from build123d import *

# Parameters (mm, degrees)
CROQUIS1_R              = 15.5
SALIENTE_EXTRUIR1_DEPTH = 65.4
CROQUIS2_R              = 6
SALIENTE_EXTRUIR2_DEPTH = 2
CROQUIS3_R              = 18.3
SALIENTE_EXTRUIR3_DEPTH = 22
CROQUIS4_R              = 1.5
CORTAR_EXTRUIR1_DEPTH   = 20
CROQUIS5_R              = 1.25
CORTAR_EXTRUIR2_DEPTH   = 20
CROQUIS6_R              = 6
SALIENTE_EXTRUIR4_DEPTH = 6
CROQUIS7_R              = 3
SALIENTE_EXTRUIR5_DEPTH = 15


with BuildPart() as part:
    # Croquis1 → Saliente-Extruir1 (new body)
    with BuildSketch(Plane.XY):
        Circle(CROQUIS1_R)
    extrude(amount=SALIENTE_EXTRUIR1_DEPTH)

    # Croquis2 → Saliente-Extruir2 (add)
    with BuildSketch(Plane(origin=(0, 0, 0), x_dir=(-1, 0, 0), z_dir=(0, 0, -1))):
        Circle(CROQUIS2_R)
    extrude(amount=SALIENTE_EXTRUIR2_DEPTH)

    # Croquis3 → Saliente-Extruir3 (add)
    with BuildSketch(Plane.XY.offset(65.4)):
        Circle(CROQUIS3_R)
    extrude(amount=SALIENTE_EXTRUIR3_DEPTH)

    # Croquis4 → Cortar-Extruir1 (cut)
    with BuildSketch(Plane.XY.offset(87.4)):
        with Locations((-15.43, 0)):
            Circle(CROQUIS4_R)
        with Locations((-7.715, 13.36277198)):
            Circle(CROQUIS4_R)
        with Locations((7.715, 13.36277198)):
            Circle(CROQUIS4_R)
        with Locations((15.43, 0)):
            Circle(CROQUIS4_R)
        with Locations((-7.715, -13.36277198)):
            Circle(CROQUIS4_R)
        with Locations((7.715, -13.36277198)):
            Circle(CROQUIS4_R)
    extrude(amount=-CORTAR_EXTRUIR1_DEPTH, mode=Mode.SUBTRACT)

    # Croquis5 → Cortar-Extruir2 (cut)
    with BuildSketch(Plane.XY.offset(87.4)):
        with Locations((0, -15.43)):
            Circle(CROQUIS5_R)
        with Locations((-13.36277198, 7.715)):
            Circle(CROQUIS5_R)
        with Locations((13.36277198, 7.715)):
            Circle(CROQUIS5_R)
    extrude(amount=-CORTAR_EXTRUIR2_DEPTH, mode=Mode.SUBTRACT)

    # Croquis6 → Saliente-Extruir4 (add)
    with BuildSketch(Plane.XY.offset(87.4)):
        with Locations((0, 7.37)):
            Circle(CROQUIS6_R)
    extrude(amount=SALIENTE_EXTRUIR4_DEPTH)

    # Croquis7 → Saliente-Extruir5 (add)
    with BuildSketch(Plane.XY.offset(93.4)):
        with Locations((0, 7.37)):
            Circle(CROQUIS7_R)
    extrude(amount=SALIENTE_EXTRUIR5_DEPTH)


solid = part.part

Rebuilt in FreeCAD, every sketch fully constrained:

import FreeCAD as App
import Part
import Sketcher

V = App.Vector

doc = App.newDocument("Part")
body = doc.addObject("PartDesign::Body", "Body")

sketch1 = doc.addObject("Sketcher::SketchObject", "Sketch")
body.addObject(sketch1)
sketch1.AttachmentSupport = (doc.XY_Plane, [""])
sketch1.MapMode = "FlatFace"
sketch1.addGeometry(Part.Circle(V(0, 0, 0), V(0, 0, 1), 16), False)
sketch1.addConstraint(Sketcher.Constraint("Coincident", 0, 3, -1, 1))
sketch1.addConstraint(Sketcher.Constraint("Diameter", 0, 31.0))
pad1 = doc.addObject("PartDesign::Pad", "Pad")
body.addObject(pad1)
pad1.Profile = sketch1
pad1.Length = 65.4

sketch2 = doc.addObject("Sketcher::SketchObject", "Sketch001")
body.addObject(sketch2)
sketch2.AttachmentSupport = (doc.XY_Plane, [""])
sketch2.MapMode = "FlatFace"
sketch2.addGeometry(Part.Circle(V(0, 0, 0), V(0, 0, 1), 6), False)
sketch2.addConstraint(Sketcher.Constraint("Coincident", 0, 3, -1, 1))
sketch2.addConstraint(Sketcher.Constraint("Diameter", 0, 12.0))
pad2 = doc.addObject("PartDesign::Pad", "Pad001")
body.addObject(pad2)
pad2.Profile = sketch2
pad2.Length = 2
pad2.Reversed = True

sketch3 = doc.addObject("Sketcher::SketchObject", "Sketch002")
body.addObject(sketch3)
sketch3.AttachmentSupport = (doc.XY_Plane, [""])
sketch3.MapMode = "FlatFace"
sketch3.AttachmentOffset = App.Placement(V(0, 0, 65.4), App.Rotation())
sketch3.addGeometry(Part.Circle(V(0, 0, 0), V(0, 0, 1), 18), False)
sketch3.addConstraint(Sketcher.Constraint("Coincident", 0, 3, -1, 1))
sketch3.addConstraint(Sketcher.Constraint("Diameter", 0, 36.6))
pad3 = doc.addObject("PartDesign::Pad", "Pad002")
body.addObject(pad3)
pad3.Profile = sketch3
pad3.Length = 22

sketch4 = doc.addObject("Sketcher::SketchObject", "Sketch003")
body.addObject(sketch4)
sketch4.AttachmentSupport = (doc.XY_Plane, [""])
sketch4.MapMode = "FlatFace"
sketch4.AttachmentOffset = App.Placement(V(0, 0, 87.4), App.Rotation())
sketch4.addGeometry(Part.Circle(V(-15.4, 0, 0), V(0, 0, 1), 1.5), False)
sketch4.addGeometry(Part.Circle(V(-7.7, 13.4, 0), V(0, 0, 1), 1.5), False)
sketch4.addGeometry(Part.Circle(V(7.7, 13.4, 0), V(0, 0, 1), 1.5), False)
sketch4.addGeometry(Part.Circle(V(15.4, 0, 0), V(0, 0, 1), 1.5), False)
sketch4.addGeometry(Part.Circle(V(-7.7, -13.4, 0), V(0, 0, 1), 1.5), False)
sketch4.addGeometry(Part.Circle(V(7.7, -13.4, 0), V(0, 0, 1), 1.5), False)
sketch4.addConstraint(Sketcher.Constraint("Equal", 0, 1))
sketch4.addConstraint(Sketcher.Constraint("Equal", 1, 2))
sketch4.addConstraint(Sketcher.Constraint("Equal", 2, 3))
sketch4.addConstraint(Sketcher.Constraint("Equal", 3, 4))
sketch4.addConstraint(Sketcher.Constraint("Equal", 4, 5))
sketch4.addConstraint(Sketcher.Constraint("Symmetric", 0, 3, 3, 3, -1, 1))
sketch4.addConstraint(Sketcher.Constraint("Symmetric", 2, 3, 4, 3, -1, 1))
sketch4.addConstraint(Sketcher.Constraint("Symmetric", 1, 3, 5, 3, -1, 1))
sketch4.addConstraint(Sketcher.Constraint("Symmetric", 1, 3, 2, 3, -2))
sketch4.addConstraint(Sketcher.Constraint("PointOnObject", 0, 3, -1))
sketch4.addConstraint(Sketcher.Constraint("Diameter", 0, 3.0))
sketch4.addConstraint(Sketcher.Constraint("DistanceX", 0, 3, -1, 1, 15.43))
sketch4.addConstraint(Sketcher.Constraint("DistanceX", 1, 3, 2, 3, 15.43))
sketch4.addConstraint(Sketcher.Constraint("DistanceY", -1, 1, 1, 3, 13.362772))
pocket1 = doc.addObject("PartDesign::Pocket", "Pocket")
body.addObject(pocket1)
pocket1.Profile = sketch4
pocket1.Length = 20

sketch5 = doc.addObject("Sketcher::SketchObject", "Sketch004")
body.addObject(sketch5)
sketch5.AttachmentSupport = (doc.XY_Plane, [""])
sketch5.MapMode = "FlatFace"
sketch5.AttachmentOffset = App.Placement(V(0, 0, 87.4), App.Rotation())
sketch5.addGeometry(Part.Circle(V(0, -15.4, 0), V(0, 0, 1), 1.2), False)
sketch5.addGeometry(Part.Circle(V(-13.4, 7.7, 0), V(0, 0, 1), 1.2), False)
sketch5.addGeometry(Part.Circle(V(13.4, 7.7, 0), V(0, 0, 1), 1.2), False)
sketch5.addConstraint(Sketcher.Constraint("Equal", 0, 1))
sketch5.addConstraint(Sketcher.Constraint("Equal", 1, 2))
sketch5.addConstraint(Sketcher.Constraint("Symmetric", 1, 3, 2, 3, -2))
sketch5.addConstraint(Sketcher.Constraint("PointOnObject", 0, 3, -2))
sketch5.addConstraint(Sketcher.Constraint("Diameter", 0, 2.5))
sketch5.addConstraint(Sketcher.Constraint("DistanceY", 0, 3, -1, 1, 15.43))
sketch5.addConstraint(Sketcher.Constraint("DistanceY", -1, 1, 1, 3, 7.715))
sketch5.addConstraint(Sketcher.Constraint("DistanceX", 1, 3, -1, 1, 13.362772))
pocket2 = doc.addObject("PartDesign::Pocket", "Pocket001")
body.addObject(pocket2)
pocket2.Profile = sketch5
pocket2.Length = 20

sketch6 = doc.addObject("Sketcher::SketchObject", "Sketch005")
body.addObject(sketch6)
sketch6.AttachmentSupport = (doc.XY_Plane, [""])
sketch6.MapMode = "FlatFace"
sketch6.AttachmentOffset = App.Placement(V(0, 0, 87.4), App.Rotation())
sketch6.addGeometry(Part.Circle(V(0, 7, 0), V(0, 0, 1), 6), False)
sketch6.addConstraint(Sketcher.Constraint("PointOnObject", 0, 3, -2))
sketch6.addConstraint(Sketcher.Constraint("Diameter", 0, 12.0))
sketch6.addConstraint(Sketcher.Constraint("DistanceY", -1, 1, 0, 3, 7.37))
pad4 = doc.addObject("PartDesign::Pad", "Pad003")
body.addObject(pad4)
pad4.Profile = sketch6
pad4.Length = 6

sketch7 = doc.addObject("Sketcher::SketchObject", "Sketch006")
body.addObject(sketch7)
sketch7.AttachmentSupport = (doc.XY_Plane, [""])
sketch7.MapMode = "FlatFace"
sketch7.AttachmentOffset = App.Placement(V(0, 0, 93.4), App.Rotation())
sketch7.addGeometry(Part.Circle(V(0, 7.4, 0), V(0, 0, 1), 3), False)
sketch7.addConstraint(Sketcher.Constraint("PointOnObject", 0, 3, -2))
sketch7.addConstraint(Sketcher.Constraint("Diameter", 0, 6.0))
sketch7.addConstraint(Sketcher.Constraint("DistanceY", -1, 1, 0, 3, 7.37))
pad5 = doc.addObject("PartDesign::Pad", "Pad004")
body.addObject(pad5)
pad5.Profile = sketch7
pad5.Length = 15

doc.recompute()
